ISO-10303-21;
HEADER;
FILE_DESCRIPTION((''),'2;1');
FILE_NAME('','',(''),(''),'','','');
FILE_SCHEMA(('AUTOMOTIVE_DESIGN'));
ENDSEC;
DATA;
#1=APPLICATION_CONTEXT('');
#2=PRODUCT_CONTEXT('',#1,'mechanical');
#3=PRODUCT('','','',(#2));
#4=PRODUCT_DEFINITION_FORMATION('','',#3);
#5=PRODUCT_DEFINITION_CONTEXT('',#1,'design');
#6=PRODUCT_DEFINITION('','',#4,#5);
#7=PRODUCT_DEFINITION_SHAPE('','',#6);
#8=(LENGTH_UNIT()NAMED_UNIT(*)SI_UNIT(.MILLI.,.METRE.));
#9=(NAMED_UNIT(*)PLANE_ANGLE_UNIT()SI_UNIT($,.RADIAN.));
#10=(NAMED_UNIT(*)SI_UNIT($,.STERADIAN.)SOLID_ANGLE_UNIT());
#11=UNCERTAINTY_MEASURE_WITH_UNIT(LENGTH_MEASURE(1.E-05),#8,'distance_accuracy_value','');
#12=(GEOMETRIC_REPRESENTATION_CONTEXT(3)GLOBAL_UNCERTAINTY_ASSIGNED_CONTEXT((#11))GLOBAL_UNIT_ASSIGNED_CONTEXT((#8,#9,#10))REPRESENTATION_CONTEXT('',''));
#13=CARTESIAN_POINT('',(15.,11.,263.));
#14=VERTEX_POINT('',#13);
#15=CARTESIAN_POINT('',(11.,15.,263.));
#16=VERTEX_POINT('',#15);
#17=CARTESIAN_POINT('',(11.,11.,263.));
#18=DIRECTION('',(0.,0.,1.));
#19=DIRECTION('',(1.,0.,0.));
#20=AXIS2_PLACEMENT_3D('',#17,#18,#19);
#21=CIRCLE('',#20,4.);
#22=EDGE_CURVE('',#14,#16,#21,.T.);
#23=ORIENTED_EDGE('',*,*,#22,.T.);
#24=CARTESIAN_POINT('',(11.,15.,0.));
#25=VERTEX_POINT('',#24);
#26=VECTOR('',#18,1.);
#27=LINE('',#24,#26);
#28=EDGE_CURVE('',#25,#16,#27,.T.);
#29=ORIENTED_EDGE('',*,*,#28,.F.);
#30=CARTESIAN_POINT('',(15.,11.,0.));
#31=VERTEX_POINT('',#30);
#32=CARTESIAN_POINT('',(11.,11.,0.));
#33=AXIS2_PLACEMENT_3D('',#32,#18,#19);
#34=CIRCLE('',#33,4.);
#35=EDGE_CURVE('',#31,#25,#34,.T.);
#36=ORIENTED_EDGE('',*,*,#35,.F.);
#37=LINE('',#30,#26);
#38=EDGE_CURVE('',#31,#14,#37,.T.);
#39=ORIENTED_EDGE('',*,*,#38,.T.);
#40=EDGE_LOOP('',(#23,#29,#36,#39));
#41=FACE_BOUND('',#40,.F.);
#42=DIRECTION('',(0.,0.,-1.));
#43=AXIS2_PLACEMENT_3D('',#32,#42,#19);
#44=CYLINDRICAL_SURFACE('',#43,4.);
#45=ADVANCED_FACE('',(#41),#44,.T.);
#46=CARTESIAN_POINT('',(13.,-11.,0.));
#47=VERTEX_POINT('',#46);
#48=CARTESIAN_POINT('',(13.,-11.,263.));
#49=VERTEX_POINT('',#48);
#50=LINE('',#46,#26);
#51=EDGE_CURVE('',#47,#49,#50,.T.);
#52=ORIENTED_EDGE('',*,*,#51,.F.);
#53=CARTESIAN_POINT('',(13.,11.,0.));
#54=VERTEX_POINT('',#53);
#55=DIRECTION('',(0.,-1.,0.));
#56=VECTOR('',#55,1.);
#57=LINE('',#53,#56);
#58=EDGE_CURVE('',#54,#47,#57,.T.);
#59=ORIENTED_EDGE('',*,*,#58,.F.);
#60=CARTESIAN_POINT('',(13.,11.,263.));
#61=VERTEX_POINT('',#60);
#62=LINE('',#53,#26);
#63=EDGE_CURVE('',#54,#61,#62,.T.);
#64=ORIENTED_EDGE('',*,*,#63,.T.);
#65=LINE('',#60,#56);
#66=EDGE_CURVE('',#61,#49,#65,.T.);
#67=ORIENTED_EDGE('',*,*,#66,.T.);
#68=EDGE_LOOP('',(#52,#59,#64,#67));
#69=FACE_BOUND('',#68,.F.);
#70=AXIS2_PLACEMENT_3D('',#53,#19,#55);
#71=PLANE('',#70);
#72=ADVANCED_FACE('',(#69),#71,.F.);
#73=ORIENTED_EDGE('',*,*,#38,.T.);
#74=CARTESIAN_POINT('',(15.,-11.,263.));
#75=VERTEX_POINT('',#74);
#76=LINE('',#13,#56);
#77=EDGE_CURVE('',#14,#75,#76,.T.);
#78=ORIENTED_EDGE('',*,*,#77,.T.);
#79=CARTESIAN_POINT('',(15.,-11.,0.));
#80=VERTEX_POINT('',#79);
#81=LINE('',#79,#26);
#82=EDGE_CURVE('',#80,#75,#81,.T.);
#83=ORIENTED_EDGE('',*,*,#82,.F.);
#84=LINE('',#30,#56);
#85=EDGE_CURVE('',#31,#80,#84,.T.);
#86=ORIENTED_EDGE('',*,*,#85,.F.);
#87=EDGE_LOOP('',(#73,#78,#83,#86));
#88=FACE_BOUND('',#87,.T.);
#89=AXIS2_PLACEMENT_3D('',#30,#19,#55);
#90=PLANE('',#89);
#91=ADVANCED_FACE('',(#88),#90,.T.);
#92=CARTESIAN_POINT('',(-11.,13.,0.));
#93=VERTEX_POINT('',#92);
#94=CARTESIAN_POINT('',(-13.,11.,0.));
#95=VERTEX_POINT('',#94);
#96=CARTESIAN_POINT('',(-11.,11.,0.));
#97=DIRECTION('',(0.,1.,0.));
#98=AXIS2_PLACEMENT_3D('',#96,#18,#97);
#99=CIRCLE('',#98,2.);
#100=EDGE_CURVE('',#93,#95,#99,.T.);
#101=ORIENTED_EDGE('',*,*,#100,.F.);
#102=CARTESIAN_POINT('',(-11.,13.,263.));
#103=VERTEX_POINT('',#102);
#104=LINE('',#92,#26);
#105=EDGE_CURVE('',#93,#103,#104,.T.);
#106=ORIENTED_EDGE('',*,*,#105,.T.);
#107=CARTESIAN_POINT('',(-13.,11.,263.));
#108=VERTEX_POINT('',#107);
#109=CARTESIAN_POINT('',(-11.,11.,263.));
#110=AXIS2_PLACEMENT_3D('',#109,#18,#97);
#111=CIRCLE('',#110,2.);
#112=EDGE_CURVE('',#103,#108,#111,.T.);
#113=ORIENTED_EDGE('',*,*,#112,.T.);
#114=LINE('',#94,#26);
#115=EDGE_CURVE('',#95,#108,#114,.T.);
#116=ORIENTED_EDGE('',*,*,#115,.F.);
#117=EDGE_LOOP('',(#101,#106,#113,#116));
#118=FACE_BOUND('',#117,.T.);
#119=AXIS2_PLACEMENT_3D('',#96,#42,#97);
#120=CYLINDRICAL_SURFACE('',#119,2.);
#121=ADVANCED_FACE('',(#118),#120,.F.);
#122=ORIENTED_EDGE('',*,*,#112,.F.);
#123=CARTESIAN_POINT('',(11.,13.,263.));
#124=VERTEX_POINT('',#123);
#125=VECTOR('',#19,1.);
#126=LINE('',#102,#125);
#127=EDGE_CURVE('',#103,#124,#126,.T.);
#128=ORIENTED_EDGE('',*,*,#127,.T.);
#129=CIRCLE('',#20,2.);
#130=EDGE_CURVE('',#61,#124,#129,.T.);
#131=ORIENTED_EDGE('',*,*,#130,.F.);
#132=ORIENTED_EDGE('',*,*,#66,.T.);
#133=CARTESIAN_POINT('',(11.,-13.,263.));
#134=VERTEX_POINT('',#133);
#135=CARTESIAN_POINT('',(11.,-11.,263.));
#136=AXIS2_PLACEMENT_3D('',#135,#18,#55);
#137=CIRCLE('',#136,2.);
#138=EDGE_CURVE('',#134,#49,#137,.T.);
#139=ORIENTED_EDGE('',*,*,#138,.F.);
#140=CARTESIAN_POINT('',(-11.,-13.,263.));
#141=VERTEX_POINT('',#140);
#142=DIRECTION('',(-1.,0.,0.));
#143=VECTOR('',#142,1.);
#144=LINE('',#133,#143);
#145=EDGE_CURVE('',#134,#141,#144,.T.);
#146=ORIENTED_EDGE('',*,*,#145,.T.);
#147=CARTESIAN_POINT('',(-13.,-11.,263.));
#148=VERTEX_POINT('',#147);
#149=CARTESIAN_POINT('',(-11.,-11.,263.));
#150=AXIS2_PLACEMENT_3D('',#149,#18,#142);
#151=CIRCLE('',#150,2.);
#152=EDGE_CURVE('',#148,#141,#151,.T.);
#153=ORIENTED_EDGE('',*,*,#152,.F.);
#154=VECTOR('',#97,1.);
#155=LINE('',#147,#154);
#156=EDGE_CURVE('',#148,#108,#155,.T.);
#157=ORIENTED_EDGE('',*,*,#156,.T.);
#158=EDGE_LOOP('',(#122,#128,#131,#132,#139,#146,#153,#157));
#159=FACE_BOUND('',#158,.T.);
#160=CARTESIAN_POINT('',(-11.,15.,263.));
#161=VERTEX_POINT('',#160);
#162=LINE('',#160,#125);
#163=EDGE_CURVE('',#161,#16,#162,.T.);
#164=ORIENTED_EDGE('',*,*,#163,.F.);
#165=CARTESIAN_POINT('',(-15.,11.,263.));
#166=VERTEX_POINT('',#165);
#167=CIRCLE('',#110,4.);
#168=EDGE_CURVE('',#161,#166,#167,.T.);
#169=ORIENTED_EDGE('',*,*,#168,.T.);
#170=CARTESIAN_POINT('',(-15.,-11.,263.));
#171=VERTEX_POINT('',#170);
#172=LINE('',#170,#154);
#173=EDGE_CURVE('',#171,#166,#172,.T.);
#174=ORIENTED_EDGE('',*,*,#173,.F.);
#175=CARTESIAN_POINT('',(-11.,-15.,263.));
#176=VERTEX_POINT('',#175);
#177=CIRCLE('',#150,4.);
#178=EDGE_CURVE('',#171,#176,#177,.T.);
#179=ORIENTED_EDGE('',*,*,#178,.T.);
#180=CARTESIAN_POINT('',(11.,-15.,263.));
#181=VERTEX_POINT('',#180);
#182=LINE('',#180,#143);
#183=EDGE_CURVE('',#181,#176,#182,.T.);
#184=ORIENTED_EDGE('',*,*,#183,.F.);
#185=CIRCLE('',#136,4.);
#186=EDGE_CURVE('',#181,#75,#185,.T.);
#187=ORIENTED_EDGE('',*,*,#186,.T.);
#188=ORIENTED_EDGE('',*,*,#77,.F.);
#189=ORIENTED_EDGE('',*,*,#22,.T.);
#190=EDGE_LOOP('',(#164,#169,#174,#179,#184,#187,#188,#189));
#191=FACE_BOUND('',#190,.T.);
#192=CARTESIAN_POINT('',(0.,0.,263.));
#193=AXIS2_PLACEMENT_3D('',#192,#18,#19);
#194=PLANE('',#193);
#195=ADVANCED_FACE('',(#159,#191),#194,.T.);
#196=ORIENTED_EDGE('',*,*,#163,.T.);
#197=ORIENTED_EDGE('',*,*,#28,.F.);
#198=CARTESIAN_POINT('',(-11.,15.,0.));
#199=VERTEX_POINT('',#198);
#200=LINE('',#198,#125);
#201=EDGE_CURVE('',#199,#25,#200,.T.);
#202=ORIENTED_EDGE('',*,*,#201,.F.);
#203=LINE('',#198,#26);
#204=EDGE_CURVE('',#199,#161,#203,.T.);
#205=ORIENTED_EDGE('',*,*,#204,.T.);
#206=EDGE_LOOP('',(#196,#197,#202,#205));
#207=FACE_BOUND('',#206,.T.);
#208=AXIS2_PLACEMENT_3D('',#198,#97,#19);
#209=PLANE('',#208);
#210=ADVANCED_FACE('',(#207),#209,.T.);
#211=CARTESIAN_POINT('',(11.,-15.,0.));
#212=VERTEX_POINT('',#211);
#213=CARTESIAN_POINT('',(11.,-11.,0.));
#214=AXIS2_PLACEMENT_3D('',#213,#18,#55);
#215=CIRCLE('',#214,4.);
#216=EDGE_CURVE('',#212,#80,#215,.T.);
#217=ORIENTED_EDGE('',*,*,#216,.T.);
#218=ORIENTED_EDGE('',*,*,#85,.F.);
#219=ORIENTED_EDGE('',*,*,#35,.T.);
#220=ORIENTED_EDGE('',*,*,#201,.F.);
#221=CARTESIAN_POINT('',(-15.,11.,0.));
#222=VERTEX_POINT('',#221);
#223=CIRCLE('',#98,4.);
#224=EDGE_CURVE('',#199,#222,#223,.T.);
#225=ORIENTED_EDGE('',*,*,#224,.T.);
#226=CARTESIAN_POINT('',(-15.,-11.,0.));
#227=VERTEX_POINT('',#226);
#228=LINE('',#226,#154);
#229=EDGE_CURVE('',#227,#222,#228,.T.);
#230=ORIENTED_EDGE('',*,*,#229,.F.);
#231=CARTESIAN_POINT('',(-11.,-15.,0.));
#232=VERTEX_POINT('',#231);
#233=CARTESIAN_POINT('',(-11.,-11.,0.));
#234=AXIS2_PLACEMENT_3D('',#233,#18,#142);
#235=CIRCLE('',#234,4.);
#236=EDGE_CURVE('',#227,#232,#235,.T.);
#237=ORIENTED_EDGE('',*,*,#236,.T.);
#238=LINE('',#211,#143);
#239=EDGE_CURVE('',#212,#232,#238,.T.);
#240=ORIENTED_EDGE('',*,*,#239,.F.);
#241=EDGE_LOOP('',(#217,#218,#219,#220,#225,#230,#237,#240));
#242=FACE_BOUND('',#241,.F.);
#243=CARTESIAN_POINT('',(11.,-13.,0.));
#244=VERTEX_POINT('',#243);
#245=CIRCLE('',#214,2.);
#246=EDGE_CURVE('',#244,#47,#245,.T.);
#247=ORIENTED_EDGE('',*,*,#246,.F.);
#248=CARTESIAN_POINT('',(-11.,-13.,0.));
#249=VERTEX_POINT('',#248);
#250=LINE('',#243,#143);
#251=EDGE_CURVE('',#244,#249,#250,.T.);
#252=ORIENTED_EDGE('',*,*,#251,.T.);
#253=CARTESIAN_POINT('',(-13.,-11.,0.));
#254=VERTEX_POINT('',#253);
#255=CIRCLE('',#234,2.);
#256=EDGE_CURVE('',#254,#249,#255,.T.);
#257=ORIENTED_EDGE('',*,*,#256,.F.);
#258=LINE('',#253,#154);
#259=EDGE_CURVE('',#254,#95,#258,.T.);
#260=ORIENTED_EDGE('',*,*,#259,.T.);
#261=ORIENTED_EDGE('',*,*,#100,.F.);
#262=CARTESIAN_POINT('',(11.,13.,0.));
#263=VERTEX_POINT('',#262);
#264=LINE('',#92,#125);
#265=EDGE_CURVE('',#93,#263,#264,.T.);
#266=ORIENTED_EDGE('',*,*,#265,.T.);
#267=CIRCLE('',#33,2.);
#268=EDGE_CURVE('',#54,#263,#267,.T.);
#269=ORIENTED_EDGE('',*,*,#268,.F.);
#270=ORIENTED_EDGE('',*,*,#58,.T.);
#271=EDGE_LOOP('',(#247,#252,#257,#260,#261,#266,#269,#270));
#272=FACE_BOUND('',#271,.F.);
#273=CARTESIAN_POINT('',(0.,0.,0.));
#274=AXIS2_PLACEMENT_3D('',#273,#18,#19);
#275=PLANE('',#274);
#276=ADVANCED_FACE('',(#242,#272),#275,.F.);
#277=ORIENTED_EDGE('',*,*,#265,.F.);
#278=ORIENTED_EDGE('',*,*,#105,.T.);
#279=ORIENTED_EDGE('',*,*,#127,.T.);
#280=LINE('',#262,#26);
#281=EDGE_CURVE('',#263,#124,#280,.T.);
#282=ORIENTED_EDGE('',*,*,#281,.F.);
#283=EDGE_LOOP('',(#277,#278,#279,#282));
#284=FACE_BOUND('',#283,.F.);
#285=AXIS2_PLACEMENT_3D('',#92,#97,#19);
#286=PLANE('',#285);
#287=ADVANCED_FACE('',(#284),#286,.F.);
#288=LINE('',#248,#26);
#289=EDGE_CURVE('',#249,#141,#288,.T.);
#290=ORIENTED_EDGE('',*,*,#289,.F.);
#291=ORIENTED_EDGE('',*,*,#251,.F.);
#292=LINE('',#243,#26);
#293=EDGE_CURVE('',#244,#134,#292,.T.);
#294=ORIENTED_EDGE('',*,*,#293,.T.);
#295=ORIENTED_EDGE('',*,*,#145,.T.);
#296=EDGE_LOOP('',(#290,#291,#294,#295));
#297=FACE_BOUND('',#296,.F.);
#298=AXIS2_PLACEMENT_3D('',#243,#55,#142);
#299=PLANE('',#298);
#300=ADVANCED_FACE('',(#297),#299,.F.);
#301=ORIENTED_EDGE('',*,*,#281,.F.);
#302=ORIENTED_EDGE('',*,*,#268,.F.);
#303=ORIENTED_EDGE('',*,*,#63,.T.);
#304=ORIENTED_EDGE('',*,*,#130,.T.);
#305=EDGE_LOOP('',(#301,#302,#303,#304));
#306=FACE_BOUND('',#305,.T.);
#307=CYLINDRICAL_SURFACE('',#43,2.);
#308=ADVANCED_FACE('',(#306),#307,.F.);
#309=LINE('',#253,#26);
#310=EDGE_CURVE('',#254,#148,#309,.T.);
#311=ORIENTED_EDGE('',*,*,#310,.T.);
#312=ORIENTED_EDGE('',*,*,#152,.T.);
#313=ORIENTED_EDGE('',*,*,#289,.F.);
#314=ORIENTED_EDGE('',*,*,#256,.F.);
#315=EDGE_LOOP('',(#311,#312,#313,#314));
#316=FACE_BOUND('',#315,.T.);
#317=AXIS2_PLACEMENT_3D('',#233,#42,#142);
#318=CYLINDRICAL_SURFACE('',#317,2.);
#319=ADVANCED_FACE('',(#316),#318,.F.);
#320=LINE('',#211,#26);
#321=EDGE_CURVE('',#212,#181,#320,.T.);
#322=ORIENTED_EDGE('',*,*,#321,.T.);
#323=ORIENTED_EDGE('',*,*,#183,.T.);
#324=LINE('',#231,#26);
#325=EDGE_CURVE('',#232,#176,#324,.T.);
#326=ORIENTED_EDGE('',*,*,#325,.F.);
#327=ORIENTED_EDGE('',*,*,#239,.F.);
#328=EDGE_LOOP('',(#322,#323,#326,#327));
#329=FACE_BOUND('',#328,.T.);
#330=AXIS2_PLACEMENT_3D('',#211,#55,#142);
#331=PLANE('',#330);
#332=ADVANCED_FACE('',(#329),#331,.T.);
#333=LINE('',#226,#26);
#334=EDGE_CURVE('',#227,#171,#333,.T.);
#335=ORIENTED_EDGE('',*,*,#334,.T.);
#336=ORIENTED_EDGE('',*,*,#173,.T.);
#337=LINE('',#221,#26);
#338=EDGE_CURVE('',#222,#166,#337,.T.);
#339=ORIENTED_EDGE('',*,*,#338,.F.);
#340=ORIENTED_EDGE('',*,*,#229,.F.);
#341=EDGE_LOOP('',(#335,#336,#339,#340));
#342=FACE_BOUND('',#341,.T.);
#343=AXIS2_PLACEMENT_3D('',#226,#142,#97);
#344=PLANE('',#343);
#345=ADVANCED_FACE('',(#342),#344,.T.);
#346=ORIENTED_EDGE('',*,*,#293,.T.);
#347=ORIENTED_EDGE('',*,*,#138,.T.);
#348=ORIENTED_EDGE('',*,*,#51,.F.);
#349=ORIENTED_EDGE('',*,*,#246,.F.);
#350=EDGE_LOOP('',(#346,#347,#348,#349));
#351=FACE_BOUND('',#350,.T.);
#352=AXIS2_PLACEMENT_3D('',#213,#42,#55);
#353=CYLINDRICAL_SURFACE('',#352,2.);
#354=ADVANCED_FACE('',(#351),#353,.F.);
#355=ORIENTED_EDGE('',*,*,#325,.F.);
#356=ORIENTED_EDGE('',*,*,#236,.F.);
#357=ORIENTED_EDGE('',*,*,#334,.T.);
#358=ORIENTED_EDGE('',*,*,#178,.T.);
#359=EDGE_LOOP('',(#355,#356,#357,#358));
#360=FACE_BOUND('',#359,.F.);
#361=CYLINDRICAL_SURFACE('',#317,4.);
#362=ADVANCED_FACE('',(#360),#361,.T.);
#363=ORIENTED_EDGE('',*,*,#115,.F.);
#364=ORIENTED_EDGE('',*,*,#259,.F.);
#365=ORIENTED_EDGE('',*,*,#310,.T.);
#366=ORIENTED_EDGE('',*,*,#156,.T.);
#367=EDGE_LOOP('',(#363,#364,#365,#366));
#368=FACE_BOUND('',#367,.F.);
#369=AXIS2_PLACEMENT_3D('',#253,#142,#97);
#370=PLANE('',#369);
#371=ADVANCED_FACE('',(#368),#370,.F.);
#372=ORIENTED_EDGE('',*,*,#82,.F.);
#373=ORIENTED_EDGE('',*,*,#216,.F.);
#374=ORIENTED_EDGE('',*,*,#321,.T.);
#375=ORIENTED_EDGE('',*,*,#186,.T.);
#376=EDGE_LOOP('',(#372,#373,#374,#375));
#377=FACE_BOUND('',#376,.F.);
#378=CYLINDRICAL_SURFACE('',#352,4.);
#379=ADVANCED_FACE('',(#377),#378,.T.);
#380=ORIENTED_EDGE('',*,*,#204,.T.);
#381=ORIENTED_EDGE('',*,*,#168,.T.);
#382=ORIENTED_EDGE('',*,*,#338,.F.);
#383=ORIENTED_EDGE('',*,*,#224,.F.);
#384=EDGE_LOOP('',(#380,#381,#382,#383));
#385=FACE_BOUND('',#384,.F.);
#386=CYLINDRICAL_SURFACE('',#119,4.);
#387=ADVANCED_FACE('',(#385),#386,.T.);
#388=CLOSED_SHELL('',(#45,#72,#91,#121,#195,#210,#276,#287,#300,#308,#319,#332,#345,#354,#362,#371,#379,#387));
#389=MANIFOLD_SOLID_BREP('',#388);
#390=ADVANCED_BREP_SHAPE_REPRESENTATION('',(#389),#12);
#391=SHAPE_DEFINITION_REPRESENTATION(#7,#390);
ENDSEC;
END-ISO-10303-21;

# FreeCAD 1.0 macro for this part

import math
import FreeCAD as App
import Part
import Sketcher
Q = App.Units.Quantity

doc = App.newDocument("Part")
params = doc.addObject("Spreadsheet::Sheet", "Params")
for row, (alias, value) in enumerate([
    ("sketch1_radius", "4 mm"),
    ("sketch1_radius2", "2 mm"),
    ("pad1_length", "263 mm"),
], start=1):
    params.set(f"A{row}", alias)
    params.set(f"B{row}", "=" + value)
    params.setAlias(f"B{row}", alias)

body = doc.addObject("PartDesign::Body", "Body")

# Sketch on XY plane
sketch1 = body.newObject("Sketcher::SketchObject", "Sketch")
sketch1.AttachmentSupport = (doc.getObject("XY_Plane"), [""])
sketch1.MapMode = "FlatFace"
sketch1.addGeometry([
    Part.LineSegment(App.Vector(-15, 11, 0), App.Vector(-15, -11, 0)),  # 0
    Part.ArcOfCircle(Part.Circle(App.Vector(-11, -11, 0), App.Vector(0, 0, 1), 4), math.radians(180), math.radians(270)),  # 1
    Part.LineSegment(App.Vector(-11, -15, 0), App.Vector(11, -15, 0)),  # 2
    Part.ArcOfCircle(Part.Circle(App.Vector(11, -11, 0), App.Vector(0, 0, 1), 4), math.radians(-90), math.radians(0)),  # 3
    Part.LineSegment(App.Vector(15, -11, 0), App.Vector(15, 11, 0)),  # 4
    Part.ArcOfCircle(Part.Circle(App.Vector(11, 11, 0), App.Vector(0, 0, 1), 4), math.radians(0), math.radians(90)),  # 5
    Part.LineSegment(App.Vector(11, 15, 0), App.Vector(-11, 15, 0)),  # 6
    Part.ArcOfCircle(Part.Circle(App.Vector(-11, 11, 0), App.Vector(0, 0, 1), 4), math.radians(90), math.radians(180)),  # 7
    Part.ArcOfCircle(Part.Circle(App.Vector(-11, 11, 0), App.Vector(0, 0, 1), 2), math.radians(90), math.radians(180)),  # 8
    Part.LineSegment(App.Vector(-11, 13, 0), App.Vector(11, 13, 0)),  # 9
    Part.ArcOfCircle(Part.Circle(App.Vector(11, 11, 0), App.Vector(0, 0, 1), 2), math.radians(0), math.radians(90)),  # 10
    Part.LineSegment(App.Vector(13, 11, 0), App.Vector(13, -11, 0)),  # 11
    Part.ArcOfCircle(Part.Circle(App.Vector(11, -11, 0), App.Vector(0, 0, 1), 2), math.radians(-90), math.radians(0)),  # 12
    Part.LineSegment(App.Vector(11, -13, 0), App.Vector(-11, -13, 0)),  # 13
    Part.ArcOfCircle(Part.Circle(App.Vector(-11, -11, 0), App.Vector(0, 0, 1), 2), math.radians(180), math.radians(270)),  # 14
    Part.LineSegment(App.Vector(-13, -11, 0), App.Vector(-13, 11, 0)),  # 15
], False)
sketch1.addConstraint([
    Sketcher.Constraint("Tangent", 0, 2, 1, 1),
    Sketcher.Constraint("Tangent", 1, 2, 2, 1),
    Sketcher.Constraint("Tangent", 2, 2, 3, 1),
    Sketcher.Constraint("Tangent", 3, 2, 4, 1),
    Sketcher.Constraint("Tangent", 4, 2, 5, 1),
    Sketcher.Constraint("Tangent", 5, 2, 6, 1),
    Sketcher.Constraint("Tangent", 6, 2, 7, 1),
    Sketcher.Constraint("Tangent", 7, 2, 0, 1),
    Sketcher.Constraint("Tangent", 8, 1, 9, 1),
    Sketcher.Constraint("Tangent", 9, 2, 10, 2),
    Sketcher.Constraint("Tangent", 10, 1, 11, 1),
    Sketcher.Constraint("Tangent", 11, 2, 12, 2),
    Sketcher.Constraint("Tangent", 12, 1, 13, 1),
    Sketcher.Constraint("Tangent", 13, 2, 14, 2),
    Sketcher.Constraint("Tangent", 14, 1, 15, 1),
    Sketcher.Constraint("Tangent", 15, 2, 8, 2),
    Sketcher.Constraint("Vertical", 0),
    Sketcher.Constraint("Horizontal", 2),
    Sketcher.Constraint("Vertical", 4),
    Sketcher.Constraint("Horizontal", 6),
    Sketcher.Constraint("Horizontal", 9),
    Sketcher.Constraint("Vertical", 11),
    Sketcher.Constraint("Horizontal", 13),
    Sketcher.Constraint("Vertical", 15),
    Sketcher.Constraint("Coincident", 8, 3, 7, 3),
    Sketcher.Constraint("Coincident", 10, 3, 5, 3),
    Sketcher.Constraint("Coincident", 12, 3, 3, 3),
    Sketcher.Constraint("Equal", 1, 3),
    Sketcher.Constraint("Equal", 3, 5),
    Sketcher.Constraint("Equal", 5, 7),
    Sketcher.Constraint("Equal", 12, 14),
    Sketcher.Constraint("Symmetric", 1, 3, 5, 3, -1, 1),
    Sketcher.Constraint("Equal", 13, 0),
    Sketcher.Constraint("Radius", 1, Q("4 mm")),
    Sketcher.Constraint("Radius", 8, Q("2 mm")),
    Sketcher.Constraint("DistanceX", 0, 2, -1, 1, Q("15 mm")),
])
sketch1.setExpression("Constraints[33]", "Params.sketch1_radius")
sketch1.setExpression("Constraints[34]", "Params.sketch1_radius2")
pad1 = body.newObject("PartDesign::Pad", "Pad")
pad1.Profile = sketch1
pad1.setExpression("Length", "Params.pad1_length")

doc.recompute()
